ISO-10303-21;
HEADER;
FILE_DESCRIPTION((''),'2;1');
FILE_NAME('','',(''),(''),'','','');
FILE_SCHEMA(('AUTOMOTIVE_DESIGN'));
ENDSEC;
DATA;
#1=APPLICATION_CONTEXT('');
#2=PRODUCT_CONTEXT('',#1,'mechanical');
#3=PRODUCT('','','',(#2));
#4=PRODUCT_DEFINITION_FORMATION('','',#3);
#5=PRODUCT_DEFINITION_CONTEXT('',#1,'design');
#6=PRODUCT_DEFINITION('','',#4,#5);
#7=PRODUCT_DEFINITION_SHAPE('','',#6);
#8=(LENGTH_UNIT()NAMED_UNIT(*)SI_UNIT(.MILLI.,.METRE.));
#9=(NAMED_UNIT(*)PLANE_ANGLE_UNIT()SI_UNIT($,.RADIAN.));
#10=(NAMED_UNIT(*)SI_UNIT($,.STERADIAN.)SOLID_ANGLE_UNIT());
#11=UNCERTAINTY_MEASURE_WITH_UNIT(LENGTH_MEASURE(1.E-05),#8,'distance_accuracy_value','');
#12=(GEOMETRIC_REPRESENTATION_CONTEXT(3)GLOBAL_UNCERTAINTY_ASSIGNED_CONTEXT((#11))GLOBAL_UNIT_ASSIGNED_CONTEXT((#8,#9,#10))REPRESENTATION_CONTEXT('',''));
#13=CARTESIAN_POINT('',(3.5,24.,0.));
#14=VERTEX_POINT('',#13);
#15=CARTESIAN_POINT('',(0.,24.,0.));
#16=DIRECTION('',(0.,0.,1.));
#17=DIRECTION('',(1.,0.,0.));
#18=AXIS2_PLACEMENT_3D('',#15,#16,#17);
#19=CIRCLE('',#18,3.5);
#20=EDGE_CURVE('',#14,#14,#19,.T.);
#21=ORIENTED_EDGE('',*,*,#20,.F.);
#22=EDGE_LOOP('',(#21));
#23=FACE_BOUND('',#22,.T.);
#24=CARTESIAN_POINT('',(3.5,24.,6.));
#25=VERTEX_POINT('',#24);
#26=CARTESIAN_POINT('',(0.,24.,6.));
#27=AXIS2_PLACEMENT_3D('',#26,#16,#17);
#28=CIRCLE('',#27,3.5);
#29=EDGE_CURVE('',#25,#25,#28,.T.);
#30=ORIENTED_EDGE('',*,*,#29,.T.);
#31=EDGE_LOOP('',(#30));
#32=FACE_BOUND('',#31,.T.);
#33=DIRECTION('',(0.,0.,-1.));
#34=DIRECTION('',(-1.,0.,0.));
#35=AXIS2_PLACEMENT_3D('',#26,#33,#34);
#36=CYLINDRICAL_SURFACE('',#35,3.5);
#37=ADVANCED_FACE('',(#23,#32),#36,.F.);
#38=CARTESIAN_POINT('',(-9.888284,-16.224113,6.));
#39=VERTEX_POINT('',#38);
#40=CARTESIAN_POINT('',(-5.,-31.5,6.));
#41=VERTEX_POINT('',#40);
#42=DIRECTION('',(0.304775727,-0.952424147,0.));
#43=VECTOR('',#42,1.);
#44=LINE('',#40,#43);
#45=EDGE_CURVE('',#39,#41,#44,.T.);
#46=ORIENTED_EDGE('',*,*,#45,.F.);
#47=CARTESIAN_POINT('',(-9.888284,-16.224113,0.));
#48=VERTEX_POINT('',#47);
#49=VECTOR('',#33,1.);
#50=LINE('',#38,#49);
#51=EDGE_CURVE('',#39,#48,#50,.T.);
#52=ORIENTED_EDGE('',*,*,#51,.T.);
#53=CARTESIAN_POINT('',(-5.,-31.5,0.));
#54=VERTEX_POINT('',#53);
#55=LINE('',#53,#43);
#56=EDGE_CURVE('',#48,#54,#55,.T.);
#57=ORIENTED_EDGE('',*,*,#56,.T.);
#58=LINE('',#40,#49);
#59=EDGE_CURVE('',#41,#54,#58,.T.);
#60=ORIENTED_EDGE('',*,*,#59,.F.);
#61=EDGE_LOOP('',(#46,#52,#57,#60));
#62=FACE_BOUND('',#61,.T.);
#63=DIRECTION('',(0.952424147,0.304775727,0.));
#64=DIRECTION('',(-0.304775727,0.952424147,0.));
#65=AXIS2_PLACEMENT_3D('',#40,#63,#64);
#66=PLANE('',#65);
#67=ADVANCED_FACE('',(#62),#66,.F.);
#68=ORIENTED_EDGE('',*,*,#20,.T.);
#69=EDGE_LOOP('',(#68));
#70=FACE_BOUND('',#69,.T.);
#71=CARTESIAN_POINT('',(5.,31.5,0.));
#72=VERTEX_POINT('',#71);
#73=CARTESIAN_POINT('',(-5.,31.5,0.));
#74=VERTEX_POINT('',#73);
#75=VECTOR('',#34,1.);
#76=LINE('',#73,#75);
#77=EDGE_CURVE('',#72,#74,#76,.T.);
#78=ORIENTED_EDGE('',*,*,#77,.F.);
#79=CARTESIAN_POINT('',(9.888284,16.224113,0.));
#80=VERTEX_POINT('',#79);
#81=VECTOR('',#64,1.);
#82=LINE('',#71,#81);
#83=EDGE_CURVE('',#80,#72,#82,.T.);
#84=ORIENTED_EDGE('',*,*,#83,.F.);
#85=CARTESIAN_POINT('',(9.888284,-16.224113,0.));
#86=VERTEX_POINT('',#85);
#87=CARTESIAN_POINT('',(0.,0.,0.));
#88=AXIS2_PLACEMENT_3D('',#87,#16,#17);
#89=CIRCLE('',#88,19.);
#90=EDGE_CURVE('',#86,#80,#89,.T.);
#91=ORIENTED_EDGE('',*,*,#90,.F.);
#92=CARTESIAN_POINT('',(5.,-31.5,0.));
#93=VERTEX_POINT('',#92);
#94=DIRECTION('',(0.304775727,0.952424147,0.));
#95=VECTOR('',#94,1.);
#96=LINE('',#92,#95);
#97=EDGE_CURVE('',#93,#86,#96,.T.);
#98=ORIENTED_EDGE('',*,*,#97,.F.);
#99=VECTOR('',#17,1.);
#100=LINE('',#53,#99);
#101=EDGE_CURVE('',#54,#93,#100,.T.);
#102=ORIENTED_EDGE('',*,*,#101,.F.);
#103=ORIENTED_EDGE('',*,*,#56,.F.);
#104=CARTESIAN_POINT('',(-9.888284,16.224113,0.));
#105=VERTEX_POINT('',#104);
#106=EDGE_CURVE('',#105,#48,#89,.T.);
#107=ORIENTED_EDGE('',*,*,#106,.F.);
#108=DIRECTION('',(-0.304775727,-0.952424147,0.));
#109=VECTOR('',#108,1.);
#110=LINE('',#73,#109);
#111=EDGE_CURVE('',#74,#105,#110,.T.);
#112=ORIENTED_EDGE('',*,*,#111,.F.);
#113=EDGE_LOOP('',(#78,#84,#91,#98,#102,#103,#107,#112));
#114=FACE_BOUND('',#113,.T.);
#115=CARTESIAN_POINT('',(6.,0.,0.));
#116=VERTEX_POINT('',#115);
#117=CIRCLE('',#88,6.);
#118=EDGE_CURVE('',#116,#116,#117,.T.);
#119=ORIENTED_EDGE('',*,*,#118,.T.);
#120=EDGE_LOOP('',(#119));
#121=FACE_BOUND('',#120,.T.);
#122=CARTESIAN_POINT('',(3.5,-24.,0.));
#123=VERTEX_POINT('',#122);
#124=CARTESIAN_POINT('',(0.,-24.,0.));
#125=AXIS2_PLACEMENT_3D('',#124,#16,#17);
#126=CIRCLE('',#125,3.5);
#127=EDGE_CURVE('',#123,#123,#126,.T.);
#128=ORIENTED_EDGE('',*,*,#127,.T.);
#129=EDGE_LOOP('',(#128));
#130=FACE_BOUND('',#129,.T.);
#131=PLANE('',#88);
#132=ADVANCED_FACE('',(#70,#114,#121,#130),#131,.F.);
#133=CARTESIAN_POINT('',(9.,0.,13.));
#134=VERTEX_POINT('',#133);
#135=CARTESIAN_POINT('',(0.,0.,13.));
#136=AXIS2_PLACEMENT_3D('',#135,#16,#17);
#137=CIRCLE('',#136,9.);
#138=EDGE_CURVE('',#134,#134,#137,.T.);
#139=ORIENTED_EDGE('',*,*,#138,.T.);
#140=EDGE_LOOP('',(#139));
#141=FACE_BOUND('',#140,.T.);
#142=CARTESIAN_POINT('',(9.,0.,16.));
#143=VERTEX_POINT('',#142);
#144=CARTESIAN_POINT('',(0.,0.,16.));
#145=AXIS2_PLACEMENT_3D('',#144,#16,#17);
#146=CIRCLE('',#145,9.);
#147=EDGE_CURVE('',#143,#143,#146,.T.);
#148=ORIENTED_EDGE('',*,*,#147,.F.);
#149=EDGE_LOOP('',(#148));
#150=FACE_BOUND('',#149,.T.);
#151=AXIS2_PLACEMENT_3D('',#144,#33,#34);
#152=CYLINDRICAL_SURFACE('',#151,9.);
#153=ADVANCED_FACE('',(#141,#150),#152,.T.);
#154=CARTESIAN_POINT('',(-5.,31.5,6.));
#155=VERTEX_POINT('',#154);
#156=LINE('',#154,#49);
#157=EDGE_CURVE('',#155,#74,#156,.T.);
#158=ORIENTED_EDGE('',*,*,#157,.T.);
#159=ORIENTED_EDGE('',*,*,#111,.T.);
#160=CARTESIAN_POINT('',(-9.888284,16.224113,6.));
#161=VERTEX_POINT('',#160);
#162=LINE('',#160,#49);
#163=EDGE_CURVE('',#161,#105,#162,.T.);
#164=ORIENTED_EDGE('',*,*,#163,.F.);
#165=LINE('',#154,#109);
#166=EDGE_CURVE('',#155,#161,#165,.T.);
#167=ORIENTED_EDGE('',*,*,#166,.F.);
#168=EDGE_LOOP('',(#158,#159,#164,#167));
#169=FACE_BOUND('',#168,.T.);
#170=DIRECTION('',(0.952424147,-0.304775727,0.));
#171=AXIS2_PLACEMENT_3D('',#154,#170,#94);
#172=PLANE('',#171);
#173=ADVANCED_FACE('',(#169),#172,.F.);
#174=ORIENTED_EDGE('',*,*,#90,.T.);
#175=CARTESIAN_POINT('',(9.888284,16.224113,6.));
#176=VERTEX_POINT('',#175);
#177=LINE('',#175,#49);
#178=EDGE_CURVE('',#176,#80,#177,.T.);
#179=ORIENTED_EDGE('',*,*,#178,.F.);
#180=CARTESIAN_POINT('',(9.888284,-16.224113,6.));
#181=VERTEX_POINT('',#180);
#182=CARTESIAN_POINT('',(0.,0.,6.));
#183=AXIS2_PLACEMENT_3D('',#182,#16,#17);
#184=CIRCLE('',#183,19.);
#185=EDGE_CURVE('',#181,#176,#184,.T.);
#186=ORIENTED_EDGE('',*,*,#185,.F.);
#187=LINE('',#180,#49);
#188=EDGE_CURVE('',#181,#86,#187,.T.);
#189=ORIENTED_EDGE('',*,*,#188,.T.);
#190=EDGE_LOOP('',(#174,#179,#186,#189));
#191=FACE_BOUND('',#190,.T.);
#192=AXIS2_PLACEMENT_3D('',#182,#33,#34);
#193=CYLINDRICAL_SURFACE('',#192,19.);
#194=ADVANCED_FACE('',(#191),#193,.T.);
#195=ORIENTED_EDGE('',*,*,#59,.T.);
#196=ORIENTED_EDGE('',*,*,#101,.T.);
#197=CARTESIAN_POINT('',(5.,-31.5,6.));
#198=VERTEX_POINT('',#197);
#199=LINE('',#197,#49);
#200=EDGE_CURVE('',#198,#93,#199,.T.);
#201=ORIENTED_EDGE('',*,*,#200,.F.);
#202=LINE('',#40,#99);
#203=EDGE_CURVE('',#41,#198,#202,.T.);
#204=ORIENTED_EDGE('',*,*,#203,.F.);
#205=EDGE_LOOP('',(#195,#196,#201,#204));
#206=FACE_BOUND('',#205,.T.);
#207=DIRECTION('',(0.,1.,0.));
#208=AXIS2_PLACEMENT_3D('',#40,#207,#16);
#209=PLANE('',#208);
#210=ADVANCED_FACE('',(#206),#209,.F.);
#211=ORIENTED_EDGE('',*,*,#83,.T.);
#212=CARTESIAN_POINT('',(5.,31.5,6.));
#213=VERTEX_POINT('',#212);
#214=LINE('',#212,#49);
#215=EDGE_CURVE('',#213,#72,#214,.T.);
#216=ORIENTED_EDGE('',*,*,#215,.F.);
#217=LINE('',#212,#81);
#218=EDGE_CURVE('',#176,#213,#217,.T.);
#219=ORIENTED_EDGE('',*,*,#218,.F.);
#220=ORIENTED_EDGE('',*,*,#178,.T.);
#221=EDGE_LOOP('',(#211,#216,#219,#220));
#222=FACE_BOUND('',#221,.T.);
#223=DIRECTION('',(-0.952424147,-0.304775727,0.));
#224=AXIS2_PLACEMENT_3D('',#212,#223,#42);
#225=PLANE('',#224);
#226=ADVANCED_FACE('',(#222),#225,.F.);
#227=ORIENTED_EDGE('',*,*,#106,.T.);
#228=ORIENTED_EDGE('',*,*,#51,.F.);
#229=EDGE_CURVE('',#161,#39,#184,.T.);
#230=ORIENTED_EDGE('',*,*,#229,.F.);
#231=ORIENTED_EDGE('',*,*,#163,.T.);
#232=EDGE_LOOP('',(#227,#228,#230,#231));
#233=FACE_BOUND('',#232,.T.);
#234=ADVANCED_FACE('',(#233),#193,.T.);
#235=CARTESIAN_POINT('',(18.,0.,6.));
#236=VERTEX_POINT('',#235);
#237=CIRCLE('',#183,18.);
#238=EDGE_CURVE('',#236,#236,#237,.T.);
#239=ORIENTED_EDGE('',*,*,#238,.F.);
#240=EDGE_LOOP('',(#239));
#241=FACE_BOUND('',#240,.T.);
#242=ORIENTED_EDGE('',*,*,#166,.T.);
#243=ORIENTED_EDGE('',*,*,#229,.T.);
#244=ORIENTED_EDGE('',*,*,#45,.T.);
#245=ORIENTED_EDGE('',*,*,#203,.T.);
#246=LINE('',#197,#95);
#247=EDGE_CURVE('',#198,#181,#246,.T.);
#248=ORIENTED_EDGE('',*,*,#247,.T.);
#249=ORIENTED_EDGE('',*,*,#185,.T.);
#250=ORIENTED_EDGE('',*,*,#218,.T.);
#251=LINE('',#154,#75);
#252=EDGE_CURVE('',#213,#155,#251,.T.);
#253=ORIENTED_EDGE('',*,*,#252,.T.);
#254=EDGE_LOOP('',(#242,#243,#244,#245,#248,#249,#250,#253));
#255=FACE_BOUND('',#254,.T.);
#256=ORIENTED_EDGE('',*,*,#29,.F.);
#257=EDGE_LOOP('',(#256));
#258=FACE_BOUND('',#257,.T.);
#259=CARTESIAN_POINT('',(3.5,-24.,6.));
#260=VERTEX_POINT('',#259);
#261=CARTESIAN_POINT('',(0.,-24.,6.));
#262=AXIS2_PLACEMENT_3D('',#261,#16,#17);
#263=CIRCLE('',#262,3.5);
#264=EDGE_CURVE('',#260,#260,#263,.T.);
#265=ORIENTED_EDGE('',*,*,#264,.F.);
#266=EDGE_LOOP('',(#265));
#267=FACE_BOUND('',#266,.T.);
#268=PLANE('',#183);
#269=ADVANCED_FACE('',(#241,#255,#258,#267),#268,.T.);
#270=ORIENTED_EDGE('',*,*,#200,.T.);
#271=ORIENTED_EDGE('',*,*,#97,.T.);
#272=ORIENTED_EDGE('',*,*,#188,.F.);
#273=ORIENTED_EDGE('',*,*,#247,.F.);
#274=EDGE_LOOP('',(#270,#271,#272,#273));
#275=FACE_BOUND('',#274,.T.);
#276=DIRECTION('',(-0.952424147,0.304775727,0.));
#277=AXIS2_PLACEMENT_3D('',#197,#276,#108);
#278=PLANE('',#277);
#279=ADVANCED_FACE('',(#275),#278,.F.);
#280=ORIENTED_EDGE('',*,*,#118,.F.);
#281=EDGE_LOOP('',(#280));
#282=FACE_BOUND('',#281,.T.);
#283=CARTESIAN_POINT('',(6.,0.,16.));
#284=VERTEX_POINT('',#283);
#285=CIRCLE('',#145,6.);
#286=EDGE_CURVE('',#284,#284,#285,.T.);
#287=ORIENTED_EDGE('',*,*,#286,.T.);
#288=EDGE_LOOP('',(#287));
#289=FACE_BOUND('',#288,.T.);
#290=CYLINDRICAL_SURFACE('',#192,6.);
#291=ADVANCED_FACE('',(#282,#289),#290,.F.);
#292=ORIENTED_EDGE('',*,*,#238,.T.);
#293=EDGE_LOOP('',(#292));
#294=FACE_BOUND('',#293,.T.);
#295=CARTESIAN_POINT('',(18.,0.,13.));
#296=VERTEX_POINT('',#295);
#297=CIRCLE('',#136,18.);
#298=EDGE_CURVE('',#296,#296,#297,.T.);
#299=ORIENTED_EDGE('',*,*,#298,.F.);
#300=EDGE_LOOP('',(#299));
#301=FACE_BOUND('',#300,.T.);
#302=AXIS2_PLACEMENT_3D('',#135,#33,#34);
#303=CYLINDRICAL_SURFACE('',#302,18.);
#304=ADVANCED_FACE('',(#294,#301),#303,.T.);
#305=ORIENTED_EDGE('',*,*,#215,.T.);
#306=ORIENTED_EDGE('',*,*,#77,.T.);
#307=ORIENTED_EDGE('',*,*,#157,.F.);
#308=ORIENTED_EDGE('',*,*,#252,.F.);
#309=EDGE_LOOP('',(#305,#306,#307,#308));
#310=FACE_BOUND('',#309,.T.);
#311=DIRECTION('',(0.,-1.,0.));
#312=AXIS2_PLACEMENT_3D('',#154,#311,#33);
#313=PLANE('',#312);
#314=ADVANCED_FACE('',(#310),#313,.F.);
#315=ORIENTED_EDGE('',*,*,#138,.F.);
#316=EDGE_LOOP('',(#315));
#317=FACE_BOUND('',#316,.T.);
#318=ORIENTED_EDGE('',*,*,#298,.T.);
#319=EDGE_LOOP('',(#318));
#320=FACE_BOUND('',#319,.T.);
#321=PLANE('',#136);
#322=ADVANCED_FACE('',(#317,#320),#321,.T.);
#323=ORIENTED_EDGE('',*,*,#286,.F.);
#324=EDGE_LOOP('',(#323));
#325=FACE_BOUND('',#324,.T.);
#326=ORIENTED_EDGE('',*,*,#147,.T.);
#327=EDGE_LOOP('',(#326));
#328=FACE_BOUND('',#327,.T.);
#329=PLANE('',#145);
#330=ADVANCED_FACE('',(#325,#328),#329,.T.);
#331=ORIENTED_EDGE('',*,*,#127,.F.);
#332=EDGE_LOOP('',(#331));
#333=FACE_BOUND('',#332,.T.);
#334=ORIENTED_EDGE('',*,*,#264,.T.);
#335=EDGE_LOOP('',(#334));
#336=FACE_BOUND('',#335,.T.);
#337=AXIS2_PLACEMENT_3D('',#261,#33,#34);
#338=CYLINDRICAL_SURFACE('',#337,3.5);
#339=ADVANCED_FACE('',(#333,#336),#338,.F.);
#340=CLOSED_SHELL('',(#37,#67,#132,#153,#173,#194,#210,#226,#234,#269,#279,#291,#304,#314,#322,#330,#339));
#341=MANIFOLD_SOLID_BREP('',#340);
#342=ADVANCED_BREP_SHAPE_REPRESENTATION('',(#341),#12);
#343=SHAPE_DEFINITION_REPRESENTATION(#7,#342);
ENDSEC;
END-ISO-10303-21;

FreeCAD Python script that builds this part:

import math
import FreeCAD as App
import Part
import Sketcher
Q = App.Units.Quantity

doc = App.newDocument("Part")
body = doc.addObject("PartDesign::Body", "Body")

sketch1 = doc.addObject("Sketcher::SketchObject", "Sketch")
body.addObject(sketch1)
sketch1.AttachmentSupport = (doc.XY_Plane, [""])
sketch1.MapMode = "FlatFace"
sketch1.addGeometry(Part.LineSegment(App.Vector(5, 31.5, 0), App.Vector(-5, 31.5, 0)), False)
sketch1.addGeometry(Part.LineSegment(App.Vector(-5, 31.5, 0), App.Vector(-9.9, 16.2, 0)), False)
sketch1.addGeometry(Part.ArcOfCircle(Part.Circle(App.Vector(0, 0, 0), App.Vector(0, 0, 1), 19), math.radians(121), math.radians(239)), False)
sketch1.addGeometry(Part.LineSegment(App.Vector(-9.9, -16.2, 0), App.Vector(-5, -31.5, 0)), False)
sketch1.addGeometry(Part.LineSegment(App.Vector(-5, -31.5, 0), App.Vector(5, -31.5, 0)), False)
sketch1.addGeometry(Part.LineSegment(App.Vector(5, -31.5, 0), App.Vector(9.9, -16.2, 0)), False)
sketch1.addGeometry(Part.ArcOfCircle(Part.Circle(App.Vector(0, 0, 0), App.Vector(0, 0, 1), 19), math.radians(-59), math.radians(59)), False)
sketch1.addGeometry(Part.LineSegment(App.Vector(9.9, 16.2, 0), App.Vector(5, 31.5, 0)), False)
sketch1.addGeometry(Part.Circle(App.Vector(0, -24, 0), App.Vector(0, 0, 1), 3.5), False)
sketch1.addGeometry(Part.Circle(App.Vector(0, 0, 0), App.Vector(0, 0, 1), 6), False)
sketch1.addGeometry(Part.Circle(App.Vector(0, 24, 0), App.Vector(0, 0, 1), 3.5), False)
sketch1.addConstraint(Sketcher.Constraint("Coincident", 0, 2, 1, 1))
sketch1.addConstraint(Sketcher.Constraint("Coincident", 1, 2, 2, 1))
sketch1.addConstraint(Sketcher.Constraint("Coincident", 2, 2, 3, 1))
sketch1.addConstraint(Sketcher.Constraint("Coincident", 3, 2, 4, 1))
sketch1.addConstraint(Sketcher.Constraint("Coincident", 4, 2, 5, 1))
sketch1.addConstraint(Sketcher.Constraint("Coincident", 5, 2, 6, 1))
sketch1.addConstraint(Sketcher.Constraint("Coincident", 6, 2, 7, 1))
sketch1.addConstraint(Sketcher.Constraint("Coincident", 7, 2, 0, 1))
sketch1.addConstraint(Sketcher.Constraint("Horizontal", 0))
sketch1.addConstraint(Sketcher.Constraint("Horizontal", 4))
sketch1.addConstraint(Sketcher.Constraint("Coincident", 2, 3, -1, 1))
sketch1.addConstraint(Sketcher.Constraint("Coincident", 6, 3, -1, 1))
sketch1.addConstraint(Sketcher.Constraint("Coincident", 9, 3, -1, 1))
sketch1.addConstraint(Sketcher.Constraint("Equal", 2, 6))
sketch1.addConstraint(Sketcher.Constraint("Equal", 8, 10))
sketch1.addConstraint(Sketcher.Constraint("Symmetric", 8, 3, 10, 3, -1, 1))
sketch1.addConstraint(Sketcher.Constraint("Symmetric", 0, 2, 4, 2, -1, 1))
sketch1.addConstraint(Sketcher.Constraint("PointOnObject", 8, 3, -2))
sketch1.addConstraint(Sketcher.Constraint("Parallel", 1, 5))
sketch1.addConstraint(Sketcher.Constraint("Parallel", 3, 7))
sketch1.addConstraint(Sketcher.Constraint("Horizontal", 2, 2, 5, 2))
sketch1.addConstraint(Sketcher.Constraint("Horizontal", 1, 2, 6, 2))
sketch1.addConstraint(Sketcher.Constraint("Vertical", 0, 2, 3, 2))
sketch1.addConstraint(Sketcher.Constraint("Diameter", 8, Q("7 mm")))
sketch1.addConstraint(Sketcher.Constraint("Diameter", 9, Q("12 mm")))
sketch1.addConstraint(Sketcher.Constraint("Radius", 2, Q("19 mm")))
sketch1.addConstraint(Sketcher.Constraint("DistanceX", 0, 2, 0, 1, Q("10 mm")))
sketch1.addConstraint(Sketcher.Constraint("DistanceY", 8, 3, -1, 1, Q("24 mm")))
sketch1.addConstraint(Sketcher.Constraint("DistanceY", -1, 1, 0, 2, Q("31.5 mm")))
sketch1.addConstraint(Sketcher.Constraint("Distance", 1, Q("16.038954 mm")))
pad1 = doc.addObject("PartDesign::Pad", "Pad")
body.addObject(pad1)
pad1.Profile = sketch1
pad1.Length = 6

sketch2 = doc.addObject("Sketcher::SketchObject", "Sketch001")
body.addObject(sketch2)
sketch2.AttachmentSupport = (doc.XY_Plane, [""])
sketch2.MapMode = "FlatFace"
sketch2.AttachmentOffset = App.Placement(App.Vector(0, 0, 6), App.Rotation())
sketch2.addGeometry(Part.Circle(App.Vector(0, 0, 0), App.Vector(0, 0, 1), 18), False)
sketch2.addConstraint(Sketcher.Constraint("Coincident", 0, 3, -1, 1))
sketch2.addConstraint(Sketcher.Constraint("Diameter", 0, Q("36 mm")))
pad2 = doc.addObject("PartDesign::Pad", "Pad001")
body.addObject(pad2)
pad2.Profile = sketch2
pad2.Length = 7

sketch3 = doc.addObject("Sketcher::SketchObject", "Sketch002")
body.addObject(sketch3)
sketch3.AttachmentSupport = (doc.XY_Plane, [""])
sketch3.MapMode = "FlatFace"
sketch3.AttachmentOffset = App.Placement(App.Vector(0, 0, 13), App.Rotation())
sketch3.addGeometry(Part.Circle(App.Vector(0, 0, 0), App.Vector(0, 0, 1), 9), False)
sketch3.addConstraint(Sketcher.Constraint("Coincident", 0, 3, -1, 1))
sketch3.addConstraint(Sketcher.Constraint("Diameter", 0, Q("18 mm")))
pad3 = doc.addObject("PartDesign::Pad", "Pad002")
body.addObject(pad3)
pad3.Profile = sketch3
pad3.Length = 3

sketch4 = doc.addObject("Sketcher::SketchObject", "Sketch003")
body.addObject(sketch4)
sketch4.AttachmentSupport = (doc.XY_Plane, [""])
sketch4.MapMode = "FlatFace"
sketch4.AttachmentOffset = App.Placement(App.Vector(0, 0, 16), App.Rotation())
sketch4.addGeometry(Part.Circle(App.Vector(0, 0, 0), App.Vector(0, 0, 1), 6), False)
sketch4.addConstraint(Sketcher.Constraint("Coincident", 0, 3, -1, 1))
sketch4.addConstraint(Sketcher.Constraint("Diameter", 0, Q("12 mm")))
pocket1 = doc.addObject("PartDesign::Pocket", "Pocket")
body.addObject(pocket1)
pocket1.Profile = sketch4
pocket1.Type = "ThroughAll"

doc.recompute()
